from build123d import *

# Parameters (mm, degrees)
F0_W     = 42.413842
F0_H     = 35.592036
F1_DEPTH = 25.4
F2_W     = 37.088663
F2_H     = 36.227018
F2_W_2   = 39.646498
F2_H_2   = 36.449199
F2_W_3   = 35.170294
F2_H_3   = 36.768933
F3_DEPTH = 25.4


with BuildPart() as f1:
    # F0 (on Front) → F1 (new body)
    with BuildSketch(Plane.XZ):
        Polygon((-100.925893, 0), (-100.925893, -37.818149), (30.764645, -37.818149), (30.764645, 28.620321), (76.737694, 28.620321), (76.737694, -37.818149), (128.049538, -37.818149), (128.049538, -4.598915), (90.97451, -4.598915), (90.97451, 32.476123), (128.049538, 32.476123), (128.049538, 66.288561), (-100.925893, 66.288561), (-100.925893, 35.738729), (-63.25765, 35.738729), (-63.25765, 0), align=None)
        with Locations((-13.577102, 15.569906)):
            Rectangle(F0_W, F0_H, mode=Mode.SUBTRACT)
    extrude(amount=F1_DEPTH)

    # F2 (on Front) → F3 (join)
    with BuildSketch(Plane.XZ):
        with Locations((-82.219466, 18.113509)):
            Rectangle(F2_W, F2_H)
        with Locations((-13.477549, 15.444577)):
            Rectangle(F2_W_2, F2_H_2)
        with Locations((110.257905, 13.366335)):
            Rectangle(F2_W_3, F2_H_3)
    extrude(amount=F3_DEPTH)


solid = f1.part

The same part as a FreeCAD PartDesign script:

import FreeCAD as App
import Part
import Sketcher

V = App.Vector
Q = App.Units.Quantity


def add_polygon(sketch, points):
    """Adds a closed chain of lines whose ends are joined by coincident constraints."""
    first, n = sketch.GeometryCount, len(points)
    for a, b in zip(points, points[1:] + points[:1]):
        sketch.addGeometry(Part.LineSegment(App.Vector(*a, 0), App.Vector(*b, 0)), False)
    for i in range(n):
        sketch.addConstraint(Sketcher.Constraint("Coincident", first + i, 2, first + (i + 1) % n, 1))

doc = App.newDocument("Part")
body = doc.addObject("PartDesign::Body", "Body")

# Sketch on XZ plane
sketch1 = body.newObject("Sketcher::SketchObject", "Sketch")
sketch1.AttachmentSupport = (doc.getObject("XZ_Plane"), [""])
sketch1.MapMode = "FlatFace"
add_polygon(sketch1, [(-100.925893, 0), (-100.925893, -37.818149), (30.764645, -37.818149), (30.764645, 28.620321), (76.737694, 28.620321), (76.737694, -37.818149), (128.049538, -37.818149), (128.049538, -4.598915), (90.97451, -4.598915), (90.97451, 32.476123), (128.049538, 32.476123), (128.049538, 66.288561), (-100.925893, 66.288561), (-100.925893, 35.738729), (-63.25765, 35.738729), (-63.25765, 0)])  # lines 0-15
add_polygon(sketch1, [(7.629819, -2.226112), (-34.784023, -2.226112), (-34.784023, 33.365924), (7.629819, 33.365924)])  # lines 16-19
sketch1.addConstraint([
    Sketcher.Constraint("Vertical", 0),
    Sketcher.Constraint("Horizontal", 1),
    Sketcher.Constraint("Vertical", 2),
    Sketcher.Constraint("Horizontal", 3),
    Sketcher.Constraint("Vertical", 4),
    Sketcher.Constraint("Horizontal", 5),
    Sketcher.Constraint("Vertical", 6),
    Sketcher.Constraint("Horizontal", 7),
    Sketcher.Constraint("Vertical", 8),
    Sketcher.Constraint("Horizontal", 9),
    Sketcher.Constraint("Vertical", 10),
    Sketcher.Constraint("Horizontal", 11),
    Sketcher.Constraint("Vertical", 12),
    Sketcher.Constraint("Horizontal", 13),
    Sketcher.Constraint("Vertical", 14),
    Sketcher.Constraint("Horizontal", 15),
    Sketcher.Constraint("Horizontal", 16),
    Sketcher.Constraint("Vertical", 17),
    Sketcher.Constraint("Horizontal", 18),
    Sketcher.Constraint("Vertical", 19),
    Sketcher.Constraint("PointOnObject", 14, 2, -1),
    Sketcher.Constraint("Horizontal", 1, 2, 4, 2),
    Sketcher.Constraint("Vertical", 6, 2, 9, 2),
    Sketcher.Constraint("Vertical", 0, 2, 11, 2),
    Sketcher.Constraint("DistanceX", 1, 1, 1, 2, Q("131.690538 mm")),
    Sketcher.Constraint("DistanceX", 3, 1, 3, 2, Q("45.973049 mm")),
    Sketcher.Constraint("DistanceX", 7, 2, 7, 1, Q("37.075028 mm")),
    Sketcher.Constraint("DistanceX", 11, 2, 11, 1, Q("228.975431 mm")),
    Sketcher.Constraint("DistanceX", 16, 2, 16, 1, Q("42.413842 mm")),
    Sketcher.Constraint("DistanceY", 0, 2, 0, 1, Q("37.818149 mm")),
    Sketcher.Constraint("DistanceY", 2, 1, 2, 2, Q("66.43847 mm")),
    Sketcher.Constraint("DistanceY", 14, 2, 14, 1, Q("35.738729 mm")),
    Sketcher.Constraint("DistanceX", 13, 1, 13, 2, Q("37.668243 mm")),
    Sketcher.Constraint("DistanceY", 6, 1, 6, 2, Q("33.219234 mm")),
    Sketcher.Constraint("DistanceY", 8, 1, 8, 2, Q("37.075038 mm")),
    Sketcher.Constraint("DistanceY", 10, 1, 10, 2, Q("33.812438 mm")),
    Sketcher.Constraint("DistanceY", 17, 1, 17, 2, Q("35.592036 mm")),
    Sketcher.Constraint("DistanceX", -1, 1, 5, 2, Q("128.049538 mm")),
    Sketcher.Constraint("DistanceX", -1, 1, 18, 2, Q("7.629819 mm")),
    Sketcher.Constraint("DistanceY", 16, 2, 13, 2, Q("37.964841 mm")),
])
pad1 = body.newObject("PartDesign::Pad", "Pad")
pad1.Profile = sketch1
pad1.Length = Q("1 in")

# Sketch on XZ plane
sketch2 = body.newObject("Sketcher::SketchObject", "Sketch001")
sketch2.AttachmentSupport = (doc.getObject("XZ_Plane"), [""])
sketch2.MapMode = "FlatFace"
add_polygon(sketch2, [(-100.763797, 36.227018), (-100.763797, 0), (-63.675134, 0), (-63.675134, 36.227018)])  # lines 0-3
add_polygon(sketch2, [(-33.300798, 33.669176), (-33.300798, -2.780022), (6.3457, -2.780022), (6.3457, 33.669176)])  # lines 4-7
add_polygon(sketch2, [(92.672758, 31.750802), (92.672758, -5.018131), (127.843052, -5.018131), (127.843052, 31.750802)])  # lines 8-11
sketch2.addConstraint([
    Sketcher.Constraint("Vertical", 0),
    Sketcher.Constraint("Horizontal", 1),
    Sketcher.Constraint("Vertical", 2),
    Sketcher.Constraint("Horizontal", 3),
    Sketcher.Constraint("Vertical", 4),
    Sketcher.Constraint("Horizontal", 5),
    Sketcher.Constraint("Vertical", 6),
    Sketcher.Constraint("Horizontal", 7),
    Sketcher.Constraint("Vertical", 8),
    Sketcher.Constraint("Horizontal", 9),
    Sketcher.Constraint("Vertical", 10),
    Sketcher.Constraint("Horizontal", 11),
    Sketcher.Constraint("PointOnObject", 0, 2, -1),
    Sketcher.Constraint("DistanceY", 4, 2, 4, 1, Q("36.449199 mm")),
    Sketcher.Constraint("DistanceX", -1, 1, 5, 2, Q("6.3457 mm")),
    Sketcher.Constraint("DistanceY", -1, 1, 10, 2, Q("31.750802 mm")),
    Sketcher.Constraint("DistanceX", 0, 2, 4, 2, Q("67.462999 mm")),
    Sketcher.Constraint("DistanceX", 1, 1, 1, 2, Q("37.088663 mm")),
    Sketcher.Constraint("DistanceX", 5, 1, 5, 2, Q("39.646498 mm")),
    Sketcher.Constraint("DistanceX", 9, 1, 9, 2, Q("35.170294 mm")),
    Sketcher.Constraint("DistanceY", 0, 2, 0, 1, Q("36.227018 mm")),
    Sketcher.Constraint("DistanceY", 8, 2, 8, 1, Q("36.768933 mm")),
    Sketcher.Constraint("DistanceX", -1, 1, 8, 2, Q("92.672758 mm")),
    Sketcher.Constraint("DistanceY", 4, 2, 2, 2, Q("39.007041 mm")),
])
pad2 = body.newObject("PartDesign::Pad", "Pad001")
pad2.Profile = sketch2
pad2.Length = Q("1 in")

doc.recompute()
